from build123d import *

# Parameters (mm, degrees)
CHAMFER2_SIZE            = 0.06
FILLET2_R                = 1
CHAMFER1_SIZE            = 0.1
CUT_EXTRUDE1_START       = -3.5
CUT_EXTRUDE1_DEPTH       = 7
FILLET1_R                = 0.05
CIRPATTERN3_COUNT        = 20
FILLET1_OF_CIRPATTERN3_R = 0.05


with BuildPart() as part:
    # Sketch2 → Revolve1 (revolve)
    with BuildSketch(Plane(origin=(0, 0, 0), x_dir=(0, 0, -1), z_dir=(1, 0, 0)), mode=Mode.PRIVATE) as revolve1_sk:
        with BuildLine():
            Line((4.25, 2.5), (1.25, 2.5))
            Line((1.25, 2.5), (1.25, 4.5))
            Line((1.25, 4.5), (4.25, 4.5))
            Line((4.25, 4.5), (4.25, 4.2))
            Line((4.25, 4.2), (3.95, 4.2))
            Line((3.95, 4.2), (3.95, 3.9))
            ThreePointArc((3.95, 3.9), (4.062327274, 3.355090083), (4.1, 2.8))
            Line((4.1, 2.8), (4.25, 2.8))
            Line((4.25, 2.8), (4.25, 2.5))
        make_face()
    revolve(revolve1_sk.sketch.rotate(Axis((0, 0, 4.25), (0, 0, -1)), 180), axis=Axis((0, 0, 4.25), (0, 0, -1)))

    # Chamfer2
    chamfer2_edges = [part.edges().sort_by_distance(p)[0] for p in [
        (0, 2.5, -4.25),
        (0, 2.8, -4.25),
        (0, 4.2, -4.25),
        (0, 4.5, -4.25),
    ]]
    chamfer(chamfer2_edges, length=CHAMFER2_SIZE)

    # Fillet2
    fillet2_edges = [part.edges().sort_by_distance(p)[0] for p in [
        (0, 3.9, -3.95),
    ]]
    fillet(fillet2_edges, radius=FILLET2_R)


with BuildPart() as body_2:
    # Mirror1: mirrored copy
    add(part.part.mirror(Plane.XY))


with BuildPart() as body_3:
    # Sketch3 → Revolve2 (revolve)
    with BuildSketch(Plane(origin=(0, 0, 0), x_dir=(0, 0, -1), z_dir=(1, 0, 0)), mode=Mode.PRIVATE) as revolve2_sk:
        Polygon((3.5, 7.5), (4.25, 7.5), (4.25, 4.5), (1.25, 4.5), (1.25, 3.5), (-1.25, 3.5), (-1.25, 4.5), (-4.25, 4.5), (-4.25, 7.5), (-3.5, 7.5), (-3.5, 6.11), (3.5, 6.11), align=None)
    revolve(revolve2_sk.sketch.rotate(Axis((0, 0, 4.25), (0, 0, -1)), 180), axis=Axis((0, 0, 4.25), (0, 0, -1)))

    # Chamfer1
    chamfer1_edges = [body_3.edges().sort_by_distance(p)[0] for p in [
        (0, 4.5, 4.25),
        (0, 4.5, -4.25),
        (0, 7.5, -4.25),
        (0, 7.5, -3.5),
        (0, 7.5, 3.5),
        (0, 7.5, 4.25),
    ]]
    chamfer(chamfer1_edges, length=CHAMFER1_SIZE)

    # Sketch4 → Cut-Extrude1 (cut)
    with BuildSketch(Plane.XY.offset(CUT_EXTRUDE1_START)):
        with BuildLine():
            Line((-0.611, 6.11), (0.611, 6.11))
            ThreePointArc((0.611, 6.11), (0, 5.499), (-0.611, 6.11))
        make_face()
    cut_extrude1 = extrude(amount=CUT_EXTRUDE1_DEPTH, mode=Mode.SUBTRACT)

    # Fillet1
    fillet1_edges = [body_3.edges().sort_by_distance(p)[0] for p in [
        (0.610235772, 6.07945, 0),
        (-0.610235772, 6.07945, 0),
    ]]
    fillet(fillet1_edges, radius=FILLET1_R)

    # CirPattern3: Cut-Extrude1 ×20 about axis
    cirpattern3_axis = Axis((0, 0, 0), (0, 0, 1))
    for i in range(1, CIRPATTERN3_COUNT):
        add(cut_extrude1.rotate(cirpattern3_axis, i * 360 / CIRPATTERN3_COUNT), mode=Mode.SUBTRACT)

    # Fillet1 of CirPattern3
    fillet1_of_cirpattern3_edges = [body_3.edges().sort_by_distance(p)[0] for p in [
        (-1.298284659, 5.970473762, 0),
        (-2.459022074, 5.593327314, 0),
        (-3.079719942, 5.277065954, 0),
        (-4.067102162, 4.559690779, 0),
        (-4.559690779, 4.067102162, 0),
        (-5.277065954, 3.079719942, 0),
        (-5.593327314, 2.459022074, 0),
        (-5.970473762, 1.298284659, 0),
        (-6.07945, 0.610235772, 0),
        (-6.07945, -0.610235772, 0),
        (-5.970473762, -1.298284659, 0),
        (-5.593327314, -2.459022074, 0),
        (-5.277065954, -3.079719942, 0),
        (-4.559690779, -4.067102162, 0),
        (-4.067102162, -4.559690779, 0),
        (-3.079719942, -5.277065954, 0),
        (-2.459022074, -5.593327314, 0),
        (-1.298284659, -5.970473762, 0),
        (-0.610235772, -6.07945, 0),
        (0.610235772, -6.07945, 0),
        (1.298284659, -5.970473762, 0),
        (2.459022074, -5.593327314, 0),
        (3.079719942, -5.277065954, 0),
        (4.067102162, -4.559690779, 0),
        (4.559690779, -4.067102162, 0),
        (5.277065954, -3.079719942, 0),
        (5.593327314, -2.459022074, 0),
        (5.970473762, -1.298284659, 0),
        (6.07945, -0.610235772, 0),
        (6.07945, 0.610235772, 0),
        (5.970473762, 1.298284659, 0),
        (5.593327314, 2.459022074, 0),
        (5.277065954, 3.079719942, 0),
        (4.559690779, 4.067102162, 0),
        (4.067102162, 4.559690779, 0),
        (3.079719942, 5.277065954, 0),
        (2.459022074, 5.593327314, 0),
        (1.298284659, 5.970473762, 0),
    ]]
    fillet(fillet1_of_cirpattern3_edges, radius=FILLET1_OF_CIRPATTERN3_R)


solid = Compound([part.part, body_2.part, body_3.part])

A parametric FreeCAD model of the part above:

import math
import FreeCAD as App
import Part
import Sketcher

V = App.Vector
Q = App.Units.Quantity


def edges_at(feature, points):
    """Names of the edges that pass closest to the given points."""
    edges = feature.Shape.Edges
    near = lambda p: min(range(len(edges)), key=lambda i: edges[i].distToShape(Part.Vertex(*p))[0])
    return sorted({f"Edge{near(p) + 1}" for p in points})

doc = App.newDocument("Part")
body = doc.addObject("PartDesign::Body", "Body")

# Sketch on YZ plane
sketch1 = body.newObject("Sketcher::SketchObject", "Sketch")
sketch1.AttachmentSupport = (doc.getObject("YZ_Plane"), [""])
sketch1.MapMode = "FlatFace"
sketch1.addGeometry([
    Part.LineSegment(V(2.5, -1.25, 0), V(2.5, -4.25, 0)),  # 0
    Part.LineSegment(V(2.5, -4.25, 0), V(2.8, -4.25, 0)),  # 1
    Part.LineSegment(V(2.8, -4.25, 0), V(2.8, -4.1, 0)),  # 2
    Part.ArcOfCircle(Part.Circle(V(2.8, 0.01, 0), V(0, 0, 1), 4.11), math.radians(-90), math.radians(-74.47)),  # 3
    Part.LineSegment(V(3.9, -3.95, 0), V(4.2, -3.95, 0)),  # 4
    Part.LineSegment(V(4.2, -3.95, 0), V(4.2, -4.25, 0)),  # 5
    Part.LineSegment(V(4.2, -4.25, 0), V(4.5, -4.25, 0)),  # 6
    Part.LineSegment(V(4.5, -4.25, 0), V(4.5, -1.25, 0)),  # 7
    Part.LineSegment(V(4.5, -1.25, 0), V(2.5, -1.25, 0)),  # 8
], False)
sketch1.addConstraint([
    Sketcher.Constraint("Coincident", 0, 2, 1, 1),
    Sketcher.Constraint("Coincident", 1, 2, 2, 1),
    Sketcher.Constraint("Coincident", 2, 2, 3, 1),
    Sketcher.Constraint("Coincident", 3, 2, 4, 1),
    Sketcher.Constraint("Coincident", 4, 2, 5, 1),
    Sketcher.Constraint("Coincident", 5, 2, 6, 1),
    Sketcher.Constraint("Coincident", 6, 2, 7, 1),
    Sketcher.Constraint("Coincident", 7, 2, 8, 1),
    Sketcher.Constraint("Coincident", 8, 2, 0, 1),
    Sketcher.Constraint("Vertical", 0),
    Sketcher.Constraint("Horizontal", 1),
    Sketcher.Constraint("Vertical", 2),
    Sketcher.Constraint("Horizontal", 4),
    Sketcher.Constraint("Vertical", 5),
    Sketcher.Constraint("Horizontal", 6),
    Sketcher.Constraint("Vertical", 7),
    Sketcher.Constraint("Horizontal", 8),
    Sketcher.Constraint("Horizontal", 1, 2, 5, 2),
    Sketcher.Constraint("Vertical", 3, 3, 1, 2),
    Sketcher.Constraint("Equal", 1, 4),
    Sketcher.Constraint("Equal", 4, 6),
    Sketcher.Constraint("Equal", 6, 5),
    Sketcher.Constraint("DistanceX", 8, 2, 8, 1, Q("2 mm")),
    Sketcher.Constraint("DistanceY", 0, 2, 0, 1, Q("3 mm")),
    Sketcher.Constraint("DistanceX", 1, 1, 1, 2, Q("0.3 mm")),
    Sketcher.Constraint("DistanceY", 2, 1, 2, 2, Q("0.15 mm")),
    Sketcher.Constraint("DistanceX", -1, 1, 3, 3, Q("2.8 mm")),
    Sketcher.Constraint("DistanceY", 2, 2, -1, 1, Q("4.1 mm")),
])
revolution = body.newObject("PartDesign::Revolution", "Revolution")
revolution.Profile = sketch1
revolution.ReferenceAxis = (sketch1, ["V_Axis"])
revolution.Angle = 360
doc.recompute()

chamfer = body.newObject("PartDesign::Chamfer", "Chamfer")
chamfer.Base = (revolution, edges_at(revolution, [
    (0, 2.5, -4.25),
    (0, 2.8, -4.25),
    (0, 4.2, -4.25),
    (0, 4.5, -4.25),
]))
chamfer.Size = 0.06
doc.recompute()

fillet = body.newObject("PartDesign::Fillet", "Fillet")
fillet.Base = (chamfer, edges_at(chamfer, [(0, 3.9, -3.95)]))
fillet.Radius = 1
body2 = doc.addObject("PartDesign::Body", "Body001")
doc.recompute()

mirroring = doc.addObject("Part::Mirroring", "Mirroring")
mirroring.Source = body
mirroring.Base = V(0, 0, 0)
mirroring.Normal = V(0, 0, 1)
body2.BaseFeature = mirroring
doc.recompute()
body3 = doc.addObject("PartDesign::Body", "Body002")

# Sketch on YZ plane
sketch2 = body3.newObject("Sketcher::SketchObject", "Sketch001")
sketch2.AttachmentSupport = (doc.getObject("YZ_Plane002"), [""])
sketch2.MapMode = "FlatFace"
sketch2.addGeometry([
    Part.LineSegment(V(7.5, -4.2, 0), V(7.5, -3.5, 0)),  # 0
    Part.LineSegment(V(7.5, -3.5, 0), V(6.1, -3.5, 0)),  # 1
    Part.LineSegment(V(6.1, -3.5, 0), V(6.1, 3.5, 0)),  # 2
    Part.LineSegment(V(6.1, 3.5, 0), V(7.5, 3.5, 0)),  # 3
    Part.LineSegment(V(7.5, 3.5, 0), V(7.5, 4.2, 0)),  # 4
    Part.LineSegment(V(7.5, 4.2, 0), V(4.5, 4.2, 0)),  # 5
    Part.LineSegment(V(4.5, 4.2, 0), V(4.5, 1.2, 0)),  # 6
    Part.LineSegment(V(4.5, 1.2, 0), V(3.5, 1.2, 0)),  # 7
    Part.LineSegment(V(3.5, 1.2, 0), V(3.5, -1.2, 0)),  # 8
    Part.LineSegment(V(3.5, -1.2, 0), V(4.5, -1.2, 0)),  # 9
    Part.LineSegment(V(4.5, -1.2, 0), V(4.5, -4.2, 0)),  # 10
    Part.LineSegment(V(4.5, -4.2, 0), V(7.5, -4.2, 0)),  # 11
], False)
sketch2.addConstraint([
    Sketcher.Constraint("Coincident", 0, 2, 1, 1),
    Sketcher.Constraint("Coincident", 1, 2, 2, 1),
    Sketcher.Constraint("Coincident", 2, 2, 3, 1),
    Sketcher.Constraint("Coincident", 3, 2, 4, 1),
    Sketcher.Constraint("Coincident", 4, 2, 5, 1),
    Sketcher.Constraint("Coincident", 5, 2, 6, 1),
    Sketcher.Constraint("Coincident", 6, 2, 7, 1),
    Sketcher.Constraint("Coincident", 7, 2, 8, 1),
    Sketcher.Constraint("Coincident", 8, 2, 9, 1),
    Sketcher.Constraint("Coincident", 9, 2, 10, 1),
    Sketcher.Constraint("Coincident", 10, 2, 11, 1),
    Sketcher.Constraint("Coincident", 11, 2, 0, 1),
    Sketcher.Constraint("Vertical", 0),
    Sketcher.Constraint("Horizontal", 1),
    Sketcher.Constraint("Vertical", 2),
    Sketcher.Constraint("Horizontal", 3),
    Sketcher.Constraint("Vertical", 4),
    Sketcher.Constraint("Horizontal", 5),
    Sketcher.Constraint("Vertical", 6),
    Sketcher.Constraint("Horizontal", 7),
    Sketcher.Constraint("Vertical", 8),
    Sketcher.Constraint("Horizontal", 9),
    Sketcher.Constraint("Vertical", 10),
    Sketcher.Constraint("Horizontal", 11),
    Sketcher.Constraint("Symmetric", 0, 2, 3, 2, -1),
    Sketcher.Constraint("Symmetric", 6, 2, 9, 2, -1),
    Sketcher.Constraint("Equal", 0, 4),
    Sketcher.Constraint("Equal", 11, 6),
    Sketcher.Constraint("DistanceX", 5, 2, 5, 1, Q("3 mm")),
    Sketcher.Constraint("DistanceX", 7, 2, 7, 1, Q("1 mm")),
    Sketcher.Constraint("DistanceY", 2, 1, 2, 2, Q("7 mm")),
    Sketcher.Constraint("DistanceY", 8, 2, 8, 1, Q("2.5 mm")),
    Sketcher.Constraint("DistanceX", 1, 2, 1, 1, Q("1.39 mm")),
    Sketcher.Constraint("DistanceX", -1, 1, 0, 2, Q("7.5 mm")),
])
revolution2 = body3.newObject("PartDesign::Revolution", "Revolution001")
revolution2.Profile = sketch2
revolution2.ReferenceAxis = (sketch2, ["V_Axis"])
revolution2.Angle = 360
doc.recompute()

chamfer2 = body3.newObject("PartDesign::Chamfer", "Chamfer001")
chamfer2.Base = (revolution2, edges_at(revolution2, [
    (0, 4.5, 4.25),
    (0, 4.5, -4.25),
    (0, 7.5, -4.25),
    (0, 7.5, -3.5),
    (0, 7.5, 3.5),
    (0, 7.5, 4.25),
]))
chamfer2.Size = 0.1

# Sketch on XY plane
sketch3 = body3.newObject("Sketcher::SketchObject", "Sketch002")
sketch3.AttachmentSupport = (doc.getObject("XY_Plane002"), [""])
sketch3.MapMode = "FlatFace"
sketch3.AttachmentOffset = App.Placement(V(0, 0, -3.5), App.Rotation())
sketch3.addGeometry([
    Part.LineSegment(V(0.6, 6.1, 0), V(-0.6, 6.1, 0)),
    Part.ArcOfCircle(Part.Circle(V(0, 6.1, 0), V(0, 0, 1), 0.6), math.radians(180), math.radians(360)),
], False)
sketch3.addConstraint([
    Sketcher.Constraint("Coincident", 0, 1, 1, 2),
    Sketcher.Constraint("Coincident", 1, 1, 0, 2),
    Sketcher.Constraint("Horizontal", 0),
    Sketcher.Constraint("PointOnObject", 1, 3, -2),
    Sketcher.Constraint("Horizontal", 1, 3, 0, 1),
    Sketcher.Constraint("Radius", 1, Q("0.611 mm")),
    Sketcher.Constraint("DistanceY", -1, 1, 1, 3, Q("6.11 mm")),
])
pocket1 = body3.newObject("PartDesign::Pocket", "Pocket")
pocket1.Profile = sketch3
pocket1.Length = 7
pocket1.Reversed = True
doc.recompute()

fillet2 = body3.newObject("PartDesign::Fillet", "Fillet001")
fillet2.Base = (pocket1, edges_at(pocket1, [(0.61, 6.079, 0), (-0.61, 6.079, 0)]))
fillet2.Radius = 0.05
doc.recompute()

polarpattern = body3.newObject("PartDesign::PolarPattern", "PolarPattern")
polarpattern.Originals = [pocket1]
polarpattern.Axis = (doc.getObject("Z_Axis002"), [""])
polarpattern.Angle = 360
polarpattern.Occurrences = 20
body3.Tip = polarpattern
doc.recompute()

fillet3 = body3.newObject("PartDesign::Fillet", "Fillet002")
fillet3.Base = (polarpattern, edges_at(polarpattern, [
    (-1.298, 5.97, 0),
    (-2.459, 5.593, 0),
    (-3.08, 5.277, 0),
    (-4.067, 4.56, 0),
    (-4.56, 4.067, 0),
    (-5.277, 3.08, 0),
    (-5.593, 2.459, 0),
    (-5.97, 1.298, 0),
    (-6.079, 0.61, 0),
    (-6.079, -0.61, 0),
    (-5.97, -1.298, 0),
    (-5.593, -2.459, 0),
    (-5.277, -3.08, 0),
    (-4.56, -4.067, 0),
    (-4.067, -4.56, 0),
    (-3.08, -5.277, 0),
    (-2.459, -5.593, 0),
    (-1.298, -5.97, 0),
    (-0.61, -6.079, 0),
    (0.61, -6.079, 0),
    (1.298, -5.97, 0),
    (2.459, -5.593, 0),
    (3.08, -5.277, 0),
    (4.067, -4.56, 0),
    (4.56, -4.067, 0),
    (5.277, -3.08, 0),
    (5.593, -2.459, 0),
    (5.97, -1.298, 0),
    (6.079, -0.61, 0),
    (6.079, 0.61, 0),
    (5.97, 1.298, 0),
    (5.593, 2.459, 0),
    (5.277, 3.08, 0),
    (4.56, 4.067, 0),
    (4.067, 4.56, 0),
    (3.08, 5.277, 0),
    (2.459, 5.593, 0),
    (1.298, 5.97, 0),
]))
fillet3.Radius = 0.05
mirroring.Visibility = False

doc.recompute()
